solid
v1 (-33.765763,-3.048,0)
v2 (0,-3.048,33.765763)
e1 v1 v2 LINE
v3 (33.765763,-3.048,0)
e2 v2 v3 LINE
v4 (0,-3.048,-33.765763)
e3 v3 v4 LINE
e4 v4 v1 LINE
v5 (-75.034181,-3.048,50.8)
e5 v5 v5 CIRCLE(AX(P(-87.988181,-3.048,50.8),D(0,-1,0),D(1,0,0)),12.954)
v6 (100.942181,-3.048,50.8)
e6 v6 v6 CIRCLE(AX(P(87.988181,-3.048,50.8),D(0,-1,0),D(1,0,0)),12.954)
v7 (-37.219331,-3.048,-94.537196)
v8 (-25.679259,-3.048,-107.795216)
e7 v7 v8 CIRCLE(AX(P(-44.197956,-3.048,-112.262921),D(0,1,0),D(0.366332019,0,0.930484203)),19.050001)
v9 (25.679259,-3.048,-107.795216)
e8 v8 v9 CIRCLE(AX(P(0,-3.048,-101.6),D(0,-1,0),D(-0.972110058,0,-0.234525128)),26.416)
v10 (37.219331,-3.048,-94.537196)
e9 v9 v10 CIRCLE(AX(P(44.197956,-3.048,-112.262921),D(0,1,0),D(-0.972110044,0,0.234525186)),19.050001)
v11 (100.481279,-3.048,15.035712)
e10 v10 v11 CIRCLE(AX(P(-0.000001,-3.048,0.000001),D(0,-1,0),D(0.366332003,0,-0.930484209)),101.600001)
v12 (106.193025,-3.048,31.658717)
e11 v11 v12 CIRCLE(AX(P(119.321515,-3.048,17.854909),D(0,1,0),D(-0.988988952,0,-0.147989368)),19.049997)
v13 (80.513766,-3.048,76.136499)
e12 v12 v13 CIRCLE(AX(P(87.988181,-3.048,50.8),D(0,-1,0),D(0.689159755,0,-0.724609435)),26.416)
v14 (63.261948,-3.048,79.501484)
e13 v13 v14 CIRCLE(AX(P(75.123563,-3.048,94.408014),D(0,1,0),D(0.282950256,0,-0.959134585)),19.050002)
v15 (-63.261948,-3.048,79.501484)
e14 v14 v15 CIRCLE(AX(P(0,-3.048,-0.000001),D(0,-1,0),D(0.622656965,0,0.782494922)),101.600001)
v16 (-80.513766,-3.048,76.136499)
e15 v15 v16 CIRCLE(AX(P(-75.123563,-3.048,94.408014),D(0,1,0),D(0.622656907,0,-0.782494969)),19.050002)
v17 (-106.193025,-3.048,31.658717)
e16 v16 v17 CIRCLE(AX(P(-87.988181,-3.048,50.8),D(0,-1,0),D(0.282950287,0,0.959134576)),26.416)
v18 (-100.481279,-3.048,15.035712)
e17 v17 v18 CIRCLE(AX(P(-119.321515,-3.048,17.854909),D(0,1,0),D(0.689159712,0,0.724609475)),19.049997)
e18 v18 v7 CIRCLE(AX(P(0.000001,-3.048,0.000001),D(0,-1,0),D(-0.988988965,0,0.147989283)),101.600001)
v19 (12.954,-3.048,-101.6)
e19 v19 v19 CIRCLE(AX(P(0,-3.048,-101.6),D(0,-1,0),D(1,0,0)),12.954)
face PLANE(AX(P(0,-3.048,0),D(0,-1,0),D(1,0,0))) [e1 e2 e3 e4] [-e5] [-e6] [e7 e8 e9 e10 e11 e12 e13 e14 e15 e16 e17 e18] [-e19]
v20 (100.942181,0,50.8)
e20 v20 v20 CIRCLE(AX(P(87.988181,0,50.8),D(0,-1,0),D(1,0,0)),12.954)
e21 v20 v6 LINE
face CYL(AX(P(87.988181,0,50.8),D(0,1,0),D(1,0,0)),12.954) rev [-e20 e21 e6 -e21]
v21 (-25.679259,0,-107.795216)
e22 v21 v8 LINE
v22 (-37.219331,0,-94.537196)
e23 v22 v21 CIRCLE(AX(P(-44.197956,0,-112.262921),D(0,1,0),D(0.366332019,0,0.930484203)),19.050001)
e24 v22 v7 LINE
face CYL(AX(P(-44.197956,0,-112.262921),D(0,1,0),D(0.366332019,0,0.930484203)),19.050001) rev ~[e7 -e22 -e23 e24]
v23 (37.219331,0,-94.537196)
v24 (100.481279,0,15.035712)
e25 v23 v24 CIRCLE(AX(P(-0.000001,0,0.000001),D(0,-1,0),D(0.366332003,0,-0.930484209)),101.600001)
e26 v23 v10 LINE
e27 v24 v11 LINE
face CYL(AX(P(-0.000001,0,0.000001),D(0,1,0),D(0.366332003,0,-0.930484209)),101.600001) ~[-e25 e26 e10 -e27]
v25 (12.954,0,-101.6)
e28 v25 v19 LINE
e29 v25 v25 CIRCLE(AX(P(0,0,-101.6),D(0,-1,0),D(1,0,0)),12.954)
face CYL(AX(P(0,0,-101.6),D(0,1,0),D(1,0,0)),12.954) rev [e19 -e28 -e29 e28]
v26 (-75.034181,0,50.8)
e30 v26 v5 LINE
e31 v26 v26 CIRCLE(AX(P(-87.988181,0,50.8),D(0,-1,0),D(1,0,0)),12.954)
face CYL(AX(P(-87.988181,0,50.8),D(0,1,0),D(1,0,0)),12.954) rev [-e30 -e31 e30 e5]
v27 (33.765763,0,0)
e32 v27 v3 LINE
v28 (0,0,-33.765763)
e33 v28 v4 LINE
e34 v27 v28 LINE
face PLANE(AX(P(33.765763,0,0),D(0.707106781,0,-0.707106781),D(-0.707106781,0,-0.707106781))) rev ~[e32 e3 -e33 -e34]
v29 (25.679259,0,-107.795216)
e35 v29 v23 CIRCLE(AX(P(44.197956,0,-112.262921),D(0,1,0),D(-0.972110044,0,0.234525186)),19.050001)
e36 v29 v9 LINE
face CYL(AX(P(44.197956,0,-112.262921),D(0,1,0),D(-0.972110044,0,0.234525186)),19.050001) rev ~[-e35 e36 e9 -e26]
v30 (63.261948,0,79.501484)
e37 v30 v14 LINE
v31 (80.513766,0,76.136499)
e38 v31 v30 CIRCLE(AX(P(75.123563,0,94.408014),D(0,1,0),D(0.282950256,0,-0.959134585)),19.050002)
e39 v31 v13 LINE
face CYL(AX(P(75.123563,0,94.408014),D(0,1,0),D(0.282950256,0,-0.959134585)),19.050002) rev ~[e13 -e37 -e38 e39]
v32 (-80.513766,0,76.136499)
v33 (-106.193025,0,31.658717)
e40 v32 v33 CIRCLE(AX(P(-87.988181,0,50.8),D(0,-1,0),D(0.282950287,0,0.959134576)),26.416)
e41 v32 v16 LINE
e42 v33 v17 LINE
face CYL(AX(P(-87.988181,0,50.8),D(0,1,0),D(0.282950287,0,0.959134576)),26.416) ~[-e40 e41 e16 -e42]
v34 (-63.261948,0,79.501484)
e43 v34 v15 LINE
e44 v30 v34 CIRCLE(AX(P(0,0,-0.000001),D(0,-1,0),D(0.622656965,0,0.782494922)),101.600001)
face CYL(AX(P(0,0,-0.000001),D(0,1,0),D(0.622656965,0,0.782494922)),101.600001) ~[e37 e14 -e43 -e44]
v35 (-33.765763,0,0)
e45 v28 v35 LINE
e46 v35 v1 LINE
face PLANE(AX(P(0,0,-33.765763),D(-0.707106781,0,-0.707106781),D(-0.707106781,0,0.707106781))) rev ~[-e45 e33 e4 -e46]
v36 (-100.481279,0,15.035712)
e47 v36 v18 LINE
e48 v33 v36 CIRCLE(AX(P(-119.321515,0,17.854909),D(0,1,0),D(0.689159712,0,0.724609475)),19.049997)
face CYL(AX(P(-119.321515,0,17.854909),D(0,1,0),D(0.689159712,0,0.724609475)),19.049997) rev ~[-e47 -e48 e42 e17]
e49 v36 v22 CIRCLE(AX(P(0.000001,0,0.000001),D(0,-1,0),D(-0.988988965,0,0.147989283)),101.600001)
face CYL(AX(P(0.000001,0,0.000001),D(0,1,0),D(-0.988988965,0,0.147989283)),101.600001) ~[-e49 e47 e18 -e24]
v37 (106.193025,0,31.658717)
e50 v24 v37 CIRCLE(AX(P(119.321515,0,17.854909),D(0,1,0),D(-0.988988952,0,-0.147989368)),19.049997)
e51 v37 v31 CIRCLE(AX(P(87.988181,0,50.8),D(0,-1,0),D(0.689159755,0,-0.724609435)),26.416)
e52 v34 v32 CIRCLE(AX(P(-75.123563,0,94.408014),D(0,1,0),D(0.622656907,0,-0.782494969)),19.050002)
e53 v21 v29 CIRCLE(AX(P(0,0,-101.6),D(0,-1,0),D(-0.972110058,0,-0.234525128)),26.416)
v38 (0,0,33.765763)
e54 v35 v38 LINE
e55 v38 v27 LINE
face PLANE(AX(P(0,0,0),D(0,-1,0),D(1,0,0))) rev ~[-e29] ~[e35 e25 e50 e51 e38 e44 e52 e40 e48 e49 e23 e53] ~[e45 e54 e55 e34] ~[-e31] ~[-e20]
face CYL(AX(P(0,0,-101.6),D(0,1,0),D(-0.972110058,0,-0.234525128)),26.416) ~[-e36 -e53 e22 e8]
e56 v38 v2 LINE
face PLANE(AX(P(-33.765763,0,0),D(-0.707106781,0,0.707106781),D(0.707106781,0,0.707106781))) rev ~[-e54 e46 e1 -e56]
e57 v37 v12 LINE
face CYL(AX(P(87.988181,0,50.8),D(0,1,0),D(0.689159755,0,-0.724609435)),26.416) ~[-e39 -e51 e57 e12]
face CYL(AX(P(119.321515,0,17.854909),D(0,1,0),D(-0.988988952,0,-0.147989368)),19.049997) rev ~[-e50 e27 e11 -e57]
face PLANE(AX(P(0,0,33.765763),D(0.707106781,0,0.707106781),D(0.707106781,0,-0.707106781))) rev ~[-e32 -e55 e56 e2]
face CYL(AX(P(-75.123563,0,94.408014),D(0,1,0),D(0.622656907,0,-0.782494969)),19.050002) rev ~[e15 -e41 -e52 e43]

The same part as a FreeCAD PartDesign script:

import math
import FreeCAD as App
import Part
import Sketcher
Q = App.Units.Quantity


def add_polygon(sketch, points):
    """Adds a closed chain of lines whose ends are joined by coincident constraints."""
    first, n = sketch.GeometryCount, len(points)
    for a, b in zip(points, points[1:] + points[:1]):
        sketch.addGeometry(Part.LineSegment(App.Vector(*a, 0), App.Vector(*b, 0)), False)
    for i in range(n):
        sketch.addConstraint(Sketcher.Constraint("Coincident", first + i, 2, first + (i + 1) % n, 1))

doc = App.newDocument("Part")
body = doc.addObject("PartDesign::Body", "Body")

# Sketch on XZ plane
sketch1 = body.newObject("Sketcher::SketchObject", "Sketch")
sketch1.AttachmentSupport = (doc.getObject("XZ_Plane"), [""])
sketch1.MapMode = "FlatFace"
sketch1.addGeometry(Part.ArcOfCircle(Part.Circle(App.Vector(-119.321515, 17.854909, 0), App.Vector(0, 0, 1), 19.049997), math.radians(-8.510425), math.radians(46.43637)), False)  # 0
sketch1.addGeometry(Part.ArcOfCircle(Part.Circle(App.Vector(0.000001, 0.000001, 0), App.Vector(0, 0, 1), 101.600001), math.radians(171.48958), math.radians(248.510421)), False)  # 1
sketch1.addGeometry(Part.ArcOfCircle(Part.Circle(App.Vector(-44.197956, -112.262921, 0), App.Vector(0, 0, 1), 19.050001), math.radians(13.563636), math.radians(68.51042)), False)  # 2
sketch1.addGeometry(Part.ArcOfCircle(Part.Circle(App.Vector(0, -101.6, 0), App.Vector(0, 0, 1), 26.416), math.radians(-166.436368), math.radians(-13.563632)), False)  # 3
sketch1.addGeometry(Part.ArcOfCircle(Part.Circle(App.Vector(44.197956, -112.262921, 0), App.Vector(0, 0, 1), 19.050001), math.radians(111.48958), math.radians(166.436364)), False)  # 4
sketch1.addGeometry(Part.ArcOfCircle(Part.Circle(App.Vector(-0.000001, 0.000001, 0), App.Vector(0, 0, 1), 101.600001), math.radians(-68.510421), math.radians(8.51042)), False)  # 5
sketch1.addGeometry(Part.ArcOfCircle(Part.Circle(App.Vector(119.321515, 17.854909, 0), App.Vector(0, 0, 1), 19.049997), math.radians(133.56363), math.radians(188.510425)), False)  # 6
sketch1.addGeometry(Part.ArcOfCircle(Part.Circle(App.Vector(87.988181, 50.8, 0), App.Vector(0, 0, 1), 26.416), math.radians(-46.436367), math.radians(106.436366)), False)  # 7
sketch1.addGeometry(Part.ArcOfCircle(Part.Circle(App.Vector(75.123563, 94.408014, 0), App.Vector(0, 0, 1), 19.050002), math.radians(-128.510417), math.radians(-73.563636)), False)  # 8
sketch1.addGeometry(Part.ArcOfCircle(Part.Circle(App.Vector(0, -0.000001, 0), App.Vector(0, 0, 1), 101.600001), math.radians(51.489579), math.radians(128.510421)), False)  # 9
sketch1.addGeometry(Part.ArcOfCircle(Part.Circle(App.Vector(-75.123563, 94.408014, 0), App.Vector(0, 0, 1), 19.050002), math.radians(-106.436364), math.radians(-51.489583)), False)  # 10
sketch1.addGeometry(Part.ArcOfCircle(Part.Circle(App.Vector(-87.988181, 50.8, 0), App.Vector(0, 0, 1), 26.416), math.radians(73.563634), math.radians(226.436367)), False)  # 11
sketch1.addGeometry(Part.Circle(App.Vector(0, -101.6, 0), App.Vector(0, 0, 1), 12.954), False)  # 12
add_polygon(sketch1, [(0, -33.765763), (-33.765763, 0), (0, 33.765763), (33.765763, 0)])  # lines 13-16
sketch1.addGeometry(Part.Circle(App.Vector(-87.988181, 50.8, 0), App.Vector(0, 0, 1), 12.954), False)  # 17
sketch1.addGeometry(Part.Circle(App.Vector(87.988181, 50.8, 0), App.Vector(0, 0, 1), 12.954), False)  # 18
sketch1.addConstraint([
    Sketcher.Constraint("Tangent", 0, 1, 1, 1),
    Sketcher.Constraint("Tangent", 1, 2, 2, 2),
    Sketcher.Constraint("Tangent", 2, 1, 3, 1),
    Sketcher.Constraint("Tangent", 3, 2, 4, 2),
    Sketcher.Constraint("Tangent", 4, 1, 5, 1),
    Sketcher.Constraint("Tangent", 5, 2, 6, 2),
    Sketcher.Constraint("Tangent", 6, 1, 7, 1),
    Sketcher.Constraint("Tangent", 7, 2, 8, 2),
    Sketcher.Constraint("Tangent", 8, 1, 9, 1),
    Sketcher.Constraint("Tangent", 9, 2, 10, 2),
    Sketcher.Constraint("Tangent", 10, 1, 11, 1),
    Sketcher.Constraint("Tangent", 11, 2, 0, 2),
    Sketcher.Constraint("Coincident", 1, 3, -1, 1),
    Sketcher.Constraint("Coincident", 5, 3, -1, 1),
    Sketcher.Constraint("Coincident", 9, 3, -1, 1),
    Sketcher.Constraint("Coincident", 12, 3, 3, 3),
    Sketcher.Constraint("Coincident", 17, 3, 11, 3),
    Sketcher.Constraint("Coincident", 18, 3, 7, 3),
    Sketcher.Constraint("Equal", 2, 4),
    Sketcher.Constraint("Equal", 1, 5),
    Sketcher.Constraint("Equal", 0, 6),
    Sketcher.Constraint("Equal", 3, 7),
    Sketcher.Constraint("Equal", 4, 8),
    Sketcher.Constraint("Equal", 5, 9),
    Sketcher.Constraint("Equal", 8, 10),
    Sketcher.Constraint("Equal", 7, 11),
    Sketcher.Constraint("Equal", 12, 17),
    Sketcher.Constraint("Equal", 17, 18),
    Sketcher.Constraint("Symmetric", 13, 2, 15, 2, -1, 1),
    Sketcher.Constraint("Symmetric", 14, 2, 16, 2, -1, 1),
    Sketcher.Constraint("Symmetric", 7, 3, 11, 3, -2),
    Sketcher.Constraint("PointOnObject", 3, 3, -2),
    Sketcher.Constraint("PointOnObject", 13, 2, -1),
    Sketcher.Constraint("PointOnObject", 14, 2, -2),
    Sketcher.Constraint("Perpendicular", 13, 14),
    Sketcher.Constraint("Radius", 1, Q("4 in")),
    Sketcher.Constraint("Diameter", 12, Q("1.02 in")),
    Sketcher.Constraint("Radius", 0, Q("0.7499999 in")),
    Sketcher.Constraint("Radius", 2, Q("0.75 in")),
    Sketcher.Constraint("Radius", 3, Q("1.04 in")),
    Sketcher.Constraint("DistanceY", 3, 3, -1, 1, Q("4 in")),
    Sketcher.Constraint("DistanceY", -1, 1, 7, 3, Q("2 in")),
    Sketcher.Constraint("Distance", 13, Q("1.88 in")),
    Sketcher.Constraint("DistanceY", -1, 1, 7, 2, Q("2.9975 in")),
])
pad1 = body.newObject("PartDesign::Pad", "Pad")
pad1.Profile = sketch1
pad1.Length = Q("0.12 in")

doc.recompute()
